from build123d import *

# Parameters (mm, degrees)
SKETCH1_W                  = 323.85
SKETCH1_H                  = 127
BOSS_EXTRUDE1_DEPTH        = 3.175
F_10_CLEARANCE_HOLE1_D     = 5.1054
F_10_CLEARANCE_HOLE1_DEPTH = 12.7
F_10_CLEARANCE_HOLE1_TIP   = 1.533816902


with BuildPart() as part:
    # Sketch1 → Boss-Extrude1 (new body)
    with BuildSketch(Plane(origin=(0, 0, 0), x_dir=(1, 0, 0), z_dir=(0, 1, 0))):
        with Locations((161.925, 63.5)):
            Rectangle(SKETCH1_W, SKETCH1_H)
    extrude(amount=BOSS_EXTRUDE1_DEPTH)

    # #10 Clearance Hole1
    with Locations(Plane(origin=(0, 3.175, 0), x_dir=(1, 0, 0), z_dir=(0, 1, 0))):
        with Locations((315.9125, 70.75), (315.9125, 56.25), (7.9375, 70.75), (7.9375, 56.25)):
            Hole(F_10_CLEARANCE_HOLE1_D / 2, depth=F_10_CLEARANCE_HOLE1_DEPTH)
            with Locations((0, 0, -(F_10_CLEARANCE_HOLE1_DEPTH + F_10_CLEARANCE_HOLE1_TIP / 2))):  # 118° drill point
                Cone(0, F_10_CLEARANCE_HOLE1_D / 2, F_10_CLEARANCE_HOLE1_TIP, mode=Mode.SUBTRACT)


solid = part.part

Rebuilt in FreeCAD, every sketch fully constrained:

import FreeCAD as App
import Part
import Sketcher
from FreeCAD import Vector
Q = App.Units.Quantity


def add_polygon(sketch, points):
    """Adds a closed chain of lines whose ends are joined by coincident constraints."""
    first, n = sketch.GeometryCount, len(points)
    for a, b in zip(points, points[1:] + points[:1]):
        sketch.addGeometry(Part.LineSegment(App.Vector(*a, 0), App.Vector(*b, 0)), False)
    for i in range(n):
        sketch.addConstraint(Sketcher.Constraint("Coincident", first + i, 2, first + (i + 1) % n, 1))

doc = App.newDocument("Part")
params = doc.addObject("Spreadsheet::Sheet", "Params")
for row, (alias, value) in enumerate([
    ("sketch1_height", "5 in"),
    ("sketch1_width", "12.75 in"),
    ("pad1_length", "0.125 in"),
    ("sketch2_diameter", "0.201 in"),
    ("hole_diameter", "0.201 in"),
    ("hole_depth", "0.5 in"),
], start=1):
    params.set(f"A{row}", alias)
    params.set(f"B{row}", "=" + value)
    params.setAlias(f"B{row}", alias)

body = doc.addObject("PartDesign::Body", "Body")

# Sketch on XZ plane
sketch1 = body.newObject("Sketcher::SketchObject", "Sketch")
sketch1.AttachmentSupport = (doc.getObject("XZ_Plane"), [""])
sketch1.MapMode = "FlatFace"
add_polygon(sketch1, [(0, -127), (0, 0), (323.85, 0), (323.85, -127)])  # lines 0-3
sketch1.addConstraint([
    Sketcher.Constraint("Vertical", 0),
    Sketcher.Constraint("Horizontal", 1),
    Sketcher.Constraint("Vertical", 2),
    Sketcher.Constraint("Horizontal", 3),
    Sketcher.Constraint("Coincident", 0, 2, -1, 1),
    Sketcher.Constraint("DistanceY", 0, 1, 0, 2, Q("5 in")),
    Sketcher.Constraint("DistanceX", 1, 1, 1, 2, Q("12.75 in")),
])
sketch1.setExpression("Constraints[9]", "Params.sketch1_height")
sketch1.setExpression("Constraints[10]", "Params.sketch1_width")
pad1 = body.newObject("PartDesign::Pad", "Pad")
pad1.Profile = sketch1
pad1.setExpression("Length", "Params.pad1_length")
pad1.Reversed = True

# Sketch on XZ plane
sketch2 = body.newObject("Sketcher::SketchObject", "Sketch001")
sketch2.AttachmentSupport = (doc.getObject("XZ_Plane"), [""])
sketch2.MapMode = "FlatFace"
sketch2.AttachmentOffset = App.Placement(Vector(0, 0, -0.125 * 25.4), App.Rotation())
sketch2.addGeometry([
    Part.Circle(Vector(315.9125, -70.75, 0), Vector(0, 0, 1), 2.5527),
    Part.Circle(Vector(315.9125, -56.25, 0), Vector(0, 0, 1), 2.5527),
    Part.Circle(Vector(7.9375, -70.75, 0), Vector(0, 0, 1), 2.5527),
    Part.Circle(Vector(7.9375, -56.25, 0), Vector(0, 0, 1), 2.5527),
], False)
sketch2.addConstraint([
    Sketcher.Constraint("Equal", 0, 1),
    Sketcher.Constraint("Equal", 1, 2),
    Sketcher.Constraint("Equal", 2, 3),
    Sketcher.Constraint("Horizontal", 0, 3, 2, 3),
    Sketcher.Constraint("Horizontal", 1, 3, 3, 3),
    Sketcher.Constraint("Vertical", 0, 3, 1, 3),
    Sketcher.Constraint("Vertical", 2, 3, 3, 3),
    Sketcher.Constraint("Diameter", 0, Q("0.201 in")),
    Sketcher.Constraint("DistanceX", -1, 1, 0, 3, Q("12.4375 in")),
    Sketcher.Constraint("DistanceX", -1, 1, 2, 3, Q("0.3125 in")),
    Sketcher.Constraint("DistanceY", 0, 3, -1, 1, Q("70.75 mm")),
    Sketcher.Constraint("DistanceY", 1, 3, -1, 1, Q("56.25 mm")),
])
sketch2.setExpression("Constraints[7]", "Params.sketch2_diameter")
doc.recompute()
hole = body.newObject("PartDesign::Hole", "Hole")
hole.Profile = sketch2
hole.ThreadType = "None"
hole.setExpression("Diameter", "Params.hole_diameter")
hole.DepthType = "Dimension"
hole.setExpression("Depth", "Params.hole_depth")
hole.DrillPoint = "Angled"
hole.DrillPointAngle = 118
hole.Reversed = True

doc.recompute()
